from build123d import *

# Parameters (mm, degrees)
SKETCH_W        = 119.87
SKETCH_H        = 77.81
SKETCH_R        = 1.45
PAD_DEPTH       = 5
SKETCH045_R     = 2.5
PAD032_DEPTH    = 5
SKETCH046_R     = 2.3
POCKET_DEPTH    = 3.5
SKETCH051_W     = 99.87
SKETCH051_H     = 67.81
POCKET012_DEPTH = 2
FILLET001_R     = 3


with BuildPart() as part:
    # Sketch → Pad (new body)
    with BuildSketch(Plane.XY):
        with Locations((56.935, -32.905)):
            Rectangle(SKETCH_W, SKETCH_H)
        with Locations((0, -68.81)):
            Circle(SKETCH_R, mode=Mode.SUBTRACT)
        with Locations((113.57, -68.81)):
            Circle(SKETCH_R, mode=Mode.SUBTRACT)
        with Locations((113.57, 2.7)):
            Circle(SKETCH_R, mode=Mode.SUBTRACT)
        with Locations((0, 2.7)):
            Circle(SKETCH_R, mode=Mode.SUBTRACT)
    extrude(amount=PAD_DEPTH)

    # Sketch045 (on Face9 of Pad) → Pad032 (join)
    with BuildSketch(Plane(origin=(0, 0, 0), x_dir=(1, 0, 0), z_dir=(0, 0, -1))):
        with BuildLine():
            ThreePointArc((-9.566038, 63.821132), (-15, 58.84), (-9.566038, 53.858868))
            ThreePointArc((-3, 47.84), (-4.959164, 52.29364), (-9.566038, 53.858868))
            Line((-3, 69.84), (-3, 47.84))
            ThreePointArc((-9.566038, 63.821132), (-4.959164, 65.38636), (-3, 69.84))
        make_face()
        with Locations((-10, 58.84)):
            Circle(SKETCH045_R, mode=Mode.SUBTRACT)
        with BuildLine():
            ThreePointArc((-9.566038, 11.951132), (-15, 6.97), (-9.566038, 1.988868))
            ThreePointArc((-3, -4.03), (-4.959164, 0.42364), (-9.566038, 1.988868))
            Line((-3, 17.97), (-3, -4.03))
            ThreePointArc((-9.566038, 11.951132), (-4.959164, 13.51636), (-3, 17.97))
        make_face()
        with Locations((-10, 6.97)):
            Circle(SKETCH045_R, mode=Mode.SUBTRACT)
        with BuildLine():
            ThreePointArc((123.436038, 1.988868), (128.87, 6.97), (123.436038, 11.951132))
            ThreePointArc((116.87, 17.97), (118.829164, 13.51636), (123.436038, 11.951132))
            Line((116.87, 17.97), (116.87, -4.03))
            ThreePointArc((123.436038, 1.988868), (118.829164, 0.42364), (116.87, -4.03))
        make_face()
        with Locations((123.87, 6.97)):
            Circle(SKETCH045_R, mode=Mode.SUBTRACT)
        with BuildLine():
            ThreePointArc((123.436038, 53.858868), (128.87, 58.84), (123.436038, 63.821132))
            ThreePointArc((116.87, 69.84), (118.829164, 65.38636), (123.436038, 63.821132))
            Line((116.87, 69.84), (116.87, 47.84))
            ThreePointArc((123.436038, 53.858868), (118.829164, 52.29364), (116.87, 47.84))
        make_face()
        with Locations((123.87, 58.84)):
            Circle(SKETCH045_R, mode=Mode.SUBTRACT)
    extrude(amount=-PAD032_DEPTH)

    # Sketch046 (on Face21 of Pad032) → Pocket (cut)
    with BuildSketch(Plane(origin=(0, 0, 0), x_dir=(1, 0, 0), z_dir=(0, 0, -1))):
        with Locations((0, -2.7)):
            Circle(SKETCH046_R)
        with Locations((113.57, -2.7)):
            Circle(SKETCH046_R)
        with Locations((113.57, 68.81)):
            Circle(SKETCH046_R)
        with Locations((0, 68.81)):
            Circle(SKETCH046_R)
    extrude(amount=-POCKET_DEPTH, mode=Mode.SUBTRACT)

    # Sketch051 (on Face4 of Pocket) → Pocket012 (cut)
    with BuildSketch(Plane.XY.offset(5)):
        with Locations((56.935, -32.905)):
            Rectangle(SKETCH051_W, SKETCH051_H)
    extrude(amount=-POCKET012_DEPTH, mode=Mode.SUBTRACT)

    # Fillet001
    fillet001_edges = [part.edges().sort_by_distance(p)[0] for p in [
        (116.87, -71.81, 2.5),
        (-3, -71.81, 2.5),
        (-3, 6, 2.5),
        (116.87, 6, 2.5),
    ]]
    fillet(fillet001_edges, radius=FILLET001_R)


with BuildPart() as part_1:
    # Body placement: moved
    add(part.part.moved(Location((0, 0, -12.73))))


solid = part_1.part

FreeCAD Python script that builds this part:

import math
import FreeCAD as App
import Part
import Sketcher
from FreeCAD import Vector


def edges_at(feature, points):
    """Names of the edges that pass closest to the given points."""
    edges = feature.Shape.Edges
    near = lambda p: min(range(len(edges)), key=lambda i: edges[i].distToShape(Part.Vertex(*p))[0])
    return sorted({f"Edge{near(p) + 1}" for p in points})


def add_polygon(sketch, points):
    """Adds a closed chain of lines whose ends are joined by coincident constraints."""
    first, n = sketch.GeometryCount, len(points)
    for a, b in zip(points, points[1:] + points[:1]):
        sketch.addGeometry(Part.LineSegment(App.Vector(*a, 0), App.Vector(*b, 0)), False)
    for i in range(n):
        sketch.addConstraint(Sketcher.Constraint("Coincident", first + i, 2, first + (i + 1) % n, 1))

doc = App.newDocument("Part")
body = doc.addObject("PartDesign::Body", "Body")

sketch1 = body.newObject("Sketcher::SketchObject", "Sketch")
sketch1.AttachmentSupport = (doc.getObject("XY_Plane"), [""])
sketch1.MapMode = "FlatFace"
add_polygon(sketch1, [(-3, 6), (-3, -71.8), (116.9, -71.8), (116.9, 6)])
sketch1.addGeometry(Part.Circle(Vector(0, -68.8, 0), Vector(0, 0, 1), 1.4), False)
sketch1.addGeometry(Part.Circle(Vector(113.6, -68.8, 0), Vector(0, 0, 1), 1.4), False)
sketch1.addGeometry(Part.Circle(Vector(0, 2.7, 0), Vector(0, 0, 1), 1.4), False)
sketch1.addGeometry(Part.Circle(Vector(113.6, 2.7, 0), Vector(0, 0, 1), 1.4), False)
sketch1.addConstraint([
    Sketcher.Constraint("Vertical", 0),
    Sketcher.Constraint("Horizontal", 1),
    Sketcher.Constraint("Vertical", 2),
    Sketcher.Constraint("Horizontal", 3),
    Sketcher.Constraint("Equal", 4, 5),
    Sketcher.Constraint("Equal", 5, 6),
    Sketcher.Constraint("Equal", 6, 7),
    Sketcher.Constraint("PointOnObject", 4, 3, -2),
    Sketcher.Constraint("PointOnObject", 6, 3, -2),
    Sketcher.Constraint("Horizontal", 4, 3, 5, 3),
    Sketcher.Constraint("Horizontal", 6, 3, 7, 3),
    Sketcher.Constraint("Vertical", 5, 3, 7, 3),
    Sketcher.Constraint("Diameter", 4, 2.9),
    Sketcher.Constraint("DistanceX", 0, 2, -1, 1, 3.0),
    Sketcher.Constraint("DistanceY", -1, 1, 2, 2, 6.0),
    Sketcher.Constraint("DistanceY", 0, 2, 4, 3, 3.0),
    Sketcher.Constraint("DistanceX", 1, 1, 1, 2, 119.87),
    Sketcher.Constraint("DistanceY", 0, 2, 0, 1, 77.81),
    Sketcher.Constraint("DistanceY", -1, 1, 6, 3, 2.7),
    Sketcher.Constraint("DistanceX", 5, 3, 1, 2, 3.3),
])
pad1 = body.newObject("PartDesign::Pad", "Pad")
pad1.Profile = sketch1
pad1.Length = 5

sketch2 = body.newObject("Sketcher::SketchObject", "Sketch001")
sketch2.AttachmentSupport = (doc.getObject("XY_Plane"), [""])
sketch2.MapMode = "FlatFace"
sketch2.addGeometry([
    Part.ArcOfCircle(Part.Circle(Vector(-10, -58.8, 0), Vector(0, 0, 1), 5), math.radians(85), math.radians(275)),
    Part.ArcOfCircle(Part.Circle(Vector(-9, -47.8, 0), Vector(0, 0, 1), 6), math.radians(-95), math.radians(0)),
    Part.LineSegment(Vector(-3, -47.8, 0), Vector(-3, -69.8, 0)),
    Part.ArcOfCircle(Part.Circle(Vector(-9, -69.8, 0), Vector(0, 0, 1), 6), math.radians(0), math.radians(95)),
    Part.Circle(Vector(-10, -58.8, 0), Vector(0, 0, 1), 2.5),
    Part.ArcOfCircle(Part.Circle(Vector(-10, -7, 0), Vector(0, 0, 1), 5), math.radians(85), math.radians(275)),
    Part.ArcOfCircle(Part.Circle(Vector(-9, 4, 0), Vector(0, 0, 1), 6), math.radians(-95), math.radians(0)),
    Part.LineSegment(Vector(-3, 4, 0), Vector(-3, -18, 0)),
    Part.ArcOfCircle(Part.Circle(Vector(-9, -18, 0), Vector(0, 0, 1), 6), math.radians(0), math.radians(95)),
    Part.Circle(Vector(-10, -7, 0), Vector(0, 0, 1), 2.5),
    Part.ArcOfCircle(Part.Circle(Vector(123.9, -7, 0), Vector(0, 0, 1), 5), math.radians(-95), math.radians(95)),
    Part.ArcOfCircle(Part.Circle(Vector(122.9, -18, 0), Vector(0, 0, 1), 6), math.radians(85), math.radians(180)),
    Part.LineSegment(Vector(116.9, -18, 0), Vector(116.9, 4, 0)),
    Part.ArcOfCircle(Part.Circle(Vector(122.9, 4, 0), Vector(0, 0, 1), 6), math.radians(180), math.radians(275)),
    Part.Circle(Vector(123.9, -7, 0), Vector(0, 0, 1), 2.5),
    Part.ArcOfCircle(Part.Circle(Vector(123.9, -58.8, 0), Vector(0, 0, 1), 5), math.radians(-95), math.radians(95)),
    Part.ArcOfCircle(Part.Circle(Vector(122.9, -69.8, 0), Vector(0, 0, 1), 6), math.radians(85), math.radians(180)),
    Part.LineSegment(Vector(116.9, -69.8, 0), Vector(116.9, -47.8, 0)),
    Part.ArcOfCircle(Part.Circle(Vector(122.9, -47.8, 0), Vector(0, 0, 1), 6), math.radians(180), math.radians(275)),
    Part.Circle(Vector(123.9, -58.8, 0), Vector(0, 0, 1), 2.5),
], False)
sketch2.addConstraint([
    Sketcher.Constraint("Tangent", 0, 1, 1, 1),
    Sketcher.Constraint("Tangent", 1, 2, 2, 1),
    Sketcher.Constraint("Tangent", 2, 2, 3, 1),
    Sketcher.Constraint("Tangent", 3, 2, 0, 2),
    Sketcher.Constraint("Tangent", 5, 1, 6, 1),
    Sketcher.Constraint("Tangent", 6, 2, 7, 1),
    Sketcher.Constraint("Tangent", 7, 2, 8, 1),
    Sketcher.Constraint("Tangent", 8, 2, 5, 2),
    Sketcher.Constraint("Tangent", 10, 1, 11, 1),
    Sketcher.Constraint("Tangent", 11, 2, 12, 1),
    Sketcher.Constraint("Tangent", 12, 2, 13, 1),
    Sketcher.Constraint("Tangent", 13, 2, 10, 2),
    Sketcher.Constraint("Tangent", 15, 1, 16, 1),
    Sketcher.Constraint("Tangent", 16, 2, 17, 1),
    Sketcher.Constraint("Tangent", 17, 2, 18, 1),
    Sketcher.Constraint("Tangent", 18, 2, 15, 2),
    Sketcher.Constraint("Vertical", 2),
    Sketcher.Constraint("Vertical", 7),
    Sketcher.Constraint("Vertical", 12),
    Sketcher.Constraint("Vertical", 17),
    Sketcher.Constraint("Coincident", 4, 3, 0, 3),
    Sketcher.Constraint("Coincident", 9, 3, 5, 3),
    Sketcher.Constraint("Coincident", 14, 3, 10, 3),
    Sketcher.Constraint("Coincident", 19, 3, 15, 3),
    Sketcher.Constraint("Equal", 1, 3),
    Sketcher.Constraint("Equal", 0, 5),
    Sketcher.Constraint("Equal", 3, 6),
    Sketcher.Constraint("Equal", 6, 8),
    Sketcher.Constraint("Equal", 4, 9),
    Sketcher.Constraint("Equal", 5, 10),
    Sketcher.Constraint("Equal", 8, 11),
    Sketcher.Constraint("Equal", 11, 13),
    Sketcher.Constraint("Equal", 9, 14),
    Sketcher.Constraint("Equal", 10, 15),
    Sketcher.Constraint("Equal", 13, 16),
    Sketcher.Constraint("Equal", 16, 18),
    Sketcher.Constraint("Equal", 14, 19),
    Sketcher.Constraint("Horizontal", 9, 3, 10, 3),
    Sketcher.Constraint("Horizontal", 8, 3, 11, 3),
    Sketcher.Constraint("Horizontal", 4, 3, 15, 3),
    Sketcher.Constraint("Horizontal", 3, 3, 16, 3),
    Sketcher.Constraint("Vertical", 4, 3, 5, 3),
    Sketcher.Constraint("Vertical", 3, 3, 6, 3),
    Sketcher.Constraint("Vertical", 14, 3, 15, 3),
    Sketcher.Constraint("Diameter", 4, 5.0),
    Sketcher.Constraint("Radius", 0, 5.0),
    Sketcher.Constraint("DistanceY", 2, 2, 2, 1, 22.0),
    Sketcher.Constraint("DistanceX", 0, 3, -1, 1, 10.0),
    Sketcher.Constraint("DistanceX", 1, 2, -1, 1, 3.0),
    Sketcher.Constraint("DistanceY", 0, 3, -1, 1, 58.84),
    Sketcher.Constraint("DistanceY", 5, 3, -1, 1, 6.97),
    Sketcher.Constraint("DistanceX", -1, 1, 10, 3, 123.87),
])
pad2 = body.newObject("PartDesign::Pad", "Pad001")
pad2.Profile = sketch2
pad2.Length = 5

sketch3 = body.newObject("Sketcher::SketchObject", "Sketch002")
sketch3.AttachmentSupport = (doc.getObject("XY_Plane"), [""])
sketch3.MapMode = "FlatFace"
sketch3.addGeometry([
    Part.Circle(Vector(0, 2.7, 0), Vector(0, 0, 1), 2.3),
    Part.Circle(Vector(113.6, 2.7, 0), Vector(0, 0, 1), 2.3),
    Part.Circle(Vector(113.6, -68.8, 0), Vector(0, 0, 1), 2.3),
    Part.Circle(Vector(0, -68.8, 0), Vector(0, 0, 1), 2.3),
], False)
sketch3.addConstraint([
    Sketcher.Constraint("Equal", 0, 1),
    Sketcher.Constraint("Equal", 1, 2),
    Sketcher.Constraint("Equal", 2, 3),
    Sketcher.Constraint("PointOnObject", 0, 3, -2),
    Sketcher.Constraint("PointOnObject", 3, 3, -2),
    Sketcher.Constraint("Horizontal", 0, 3, 1, 3),
    Sketcher.Constraint("Horizontal", 2, 3, 3, 3),
    Sketcher.Constraint("Vertical", 1, 3, 2, 3),
    Sketcher.Constraint("Diameter", 0, 4.6),
    Sketcher.Constraint("DistanceY", -1, 1, 0, 3, 2.7),
    Sketcher.Constraint("DistanceX", -1, 1, 1, 3, 113.57),
    Sketcher.Constraint("DistanceY", 2, 3, -1, 1, 68.81),
])
pocket1 = body.newObject("PartDesign::Pocket", "Pocket")
pocket1.Profile = sketch3
pocket1.Length = 3.5
pocket1.Reversed = True

sketch4 = body.newObject("Sketcher::SketchObject", "Sketch003")
sketch4.AttachmentSupport = (doc.getObject("XY_Plane"), [""])
sketch4.MapMode = "FlatFace"
sketch4.AttachmentOffset = App.Placement(Vector(0, 0, 5), App.Rotation())
add_polygon(sketch4, [(7, 1), (7, -67), (107, -67), (107, 1)])
sketch4.addConstraint([
    Sketcher.Constraint("Vertical", 0),
    Sketcher.Constraint("Horizontal", 1),
    Sketcher.Constraint("Vertical", 2),
    Sketcher.Constraint("Horizontal", 3),
    Sketcher.Constraint("DistanceX", -1, 1, 0, 2, 7.0),
    Sketcher.Constraint("DistanceY", -1, 1, 2, 2, 1.0),
    Sketcher.Constraint("DistanceX", 1, 1, 1, 2, 99.87),
    Sketcher.Constraint("DistanceY", 0, 2, 0, 1, 67.81),
])
pocket2 = body.newObject("PartDesign::Pocket", "Pocket001")
pocket2.Profile = sketch4
pocket2.Length = 2
doc.recompute()

fillet = body.newObject("PartDesign::Fillet", "Fillet")
fillet.Base = (pocket2, edges_at(pocket2, [
    (116.87, -71.81, 2.5),
    (-3, -71.81, 2.5),
    (-3, 6, 2.5),
    (116.87, 6, 2.5),
]))
fillet.Radius = 3
body2 = doc.addObject("PartDesign::Body", "Body001")
doc.recompute()

body.Placement = App.Placement(Vector(0, 0, -12.73), App.Rotation(Vector(0, 0, 1), 0))
boolean = body2.newObject("PartDesign::Boolean", "Boolean")
boolean.Type = "Fuse"
boolean.addObjects([body])

doc.recompute()
